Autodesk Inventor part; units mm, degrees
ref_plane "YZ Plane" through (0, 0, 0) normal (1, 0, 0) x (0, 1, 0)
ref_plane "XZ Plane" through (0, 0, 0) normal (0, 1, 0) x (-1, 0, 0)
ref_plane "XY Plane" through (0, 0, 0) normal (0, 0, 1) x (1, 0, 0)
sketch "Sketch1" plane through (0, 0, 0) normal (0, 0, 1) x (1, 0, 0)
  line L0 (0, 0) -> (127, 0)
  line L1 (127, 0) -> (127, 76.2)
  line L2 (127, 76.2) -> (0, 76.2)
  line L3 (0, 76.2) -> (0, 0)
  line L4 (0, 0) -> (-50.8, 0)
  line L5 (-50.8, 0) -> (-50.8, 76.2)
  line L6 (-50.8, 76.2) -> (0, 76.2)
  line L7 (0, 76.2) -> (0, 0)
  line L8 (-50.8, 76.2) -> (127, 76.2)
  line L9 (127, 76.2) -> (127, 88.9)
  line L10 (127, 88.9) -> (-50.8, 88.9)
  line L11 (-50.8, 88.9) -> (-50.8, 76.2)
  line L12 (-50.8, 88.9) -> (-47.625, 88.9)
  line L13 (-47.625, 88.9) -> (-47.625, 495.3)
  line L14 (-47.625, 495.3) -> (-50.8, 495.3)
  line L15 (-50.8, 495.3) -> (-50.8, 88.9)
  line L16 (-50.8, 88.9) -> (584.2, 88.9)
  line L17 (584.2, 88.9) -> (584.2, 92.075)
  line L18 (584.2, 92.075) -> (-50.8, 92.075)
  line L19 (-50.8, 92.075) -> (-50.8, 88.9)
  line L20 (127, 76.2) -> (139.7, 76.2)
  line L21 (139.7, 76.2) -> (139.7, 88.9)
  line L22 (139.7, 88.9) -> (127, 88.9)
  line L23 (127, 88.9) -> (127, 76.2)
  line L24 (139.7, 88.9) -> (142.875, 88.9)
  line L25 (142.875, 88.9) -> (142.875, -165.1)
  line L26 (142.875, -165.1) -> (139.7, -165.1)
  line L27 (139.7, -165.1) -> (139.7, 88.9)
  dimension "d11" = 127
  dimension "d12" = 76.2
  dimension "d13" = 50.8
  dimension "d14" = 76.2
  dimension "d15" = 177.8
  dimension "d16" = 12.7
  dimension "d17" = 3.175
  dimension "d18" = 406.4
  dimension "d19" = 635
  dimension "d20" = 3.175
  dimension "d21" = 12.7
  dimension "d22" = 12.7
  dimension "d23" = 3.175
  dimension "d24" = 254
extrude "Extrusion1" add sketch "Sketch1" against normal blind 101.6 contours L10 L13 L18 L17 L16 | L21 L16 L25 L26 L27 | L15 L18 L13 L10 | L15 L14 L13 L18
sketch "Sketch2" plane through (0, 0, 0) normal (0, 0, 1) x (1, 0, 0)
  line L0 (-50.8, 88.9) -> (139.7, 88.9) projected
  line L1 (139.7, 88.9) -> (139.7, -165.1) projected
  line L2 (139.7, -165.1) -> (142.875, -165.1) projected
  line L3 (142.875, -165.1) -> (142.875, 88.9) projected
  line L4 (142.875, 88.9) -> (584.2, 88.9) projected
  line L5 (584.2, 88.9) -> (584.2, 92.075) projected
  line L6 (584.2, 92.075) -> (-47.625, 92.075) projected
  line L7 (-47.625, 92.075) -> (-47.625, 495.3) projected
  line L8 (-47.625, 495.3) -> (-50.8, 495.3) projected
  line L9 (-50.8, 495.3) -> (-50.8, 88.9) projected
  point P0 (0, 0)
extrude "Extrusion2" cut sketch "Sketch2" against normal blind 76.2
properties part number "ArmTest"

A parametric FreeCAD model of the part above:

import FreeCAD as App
import Part
import Sketcher

V = App.Vector
Q = App.Units.Quantity

doc = App.newDocument("Part")
body = doc.addObject("PartDesign::Body", "Body")

# Sketch on XY plane
sketch1 = doc.addObject("Sketcher::SketchObject", "Sketch")
body.addObject(sketch1)
sketch1.AttachmentSupport = (doc.XY_Plane, [""])
sketch1.MapMode = "FlatFace"
sketch1.addGeometry([
    Part.LineSegment(V(139.7, 88.9, 0), V(139.7, -165.1, 0)),  # 0
    Part.LineSegment(V(139.7, -165.1, 0), V(142.9, -165.1, 0)),  # 1
    Part.LineSegment(V(142.9, -165.1, 0), V(142.9, 88.9, 0)),  # 2
    Part.LineSegment(V(142.9, 88.9, 0), V(584.2, 88.9, 0)),  # 3
    Part.LineSegment(V(584.2, 88.9, 0), V(584.2, 92.1, 0)),  # 4
    Part.LineSegment(V(584.2, 92.1, 0), V(-47.6, 92.1, 0)),  # 5
    Part.LineSegment(V(-47.6, 92.1, 0), V(-47.6, 495.3, 0)),  # 6
    Part.LineSegment(V(-47.6, 495.3, 0), V(-50.8, 495.3, 0)),  # 7
    Part.LineSegment(V(-50.8, 495.3, 0), V(-50.8, 88.9, 0)),  # 8
    Part.LineSegment(V(-50.8, 88.9, 0), V(139.7, 88.9, 0)),  # 9
], False)
sketch1.addConstraint([
    Sketcher.Constraint("Coincident", 0, 2, 1, 1),
    Sketcher.Constraint("Coincident", 1, 2, 2, 1),
    Sketcher.Constraint("Coincident", 2, 2, 3, 1),
    Sketcher.Constraint("Coincident", 3, 2, 4, 1),
    Sketcher.Constraint("Coincident", 4, 2, 5, 1),
    Sketcher.Constraint("Coincident", 5, 2, 6, 1),
    Sketcher.Constraint("Coincident", 6, 2, 7, 1),
    Sketcher.Constraint("Coincident", 7, 2, 8, 1),
    Sketcher.Constraint("Coincident", 8, 2, 9, 1),
    Sketcher.Constraint("Coincident", 9, 2, 0, 1),
    Sketcher.Constraint("Vertical", 0),
    Sketcher.Constraint("Horizontal", 1),
    Sketcher.Constraint("Vertical", 2),
    Sketcher.Constraint("Horizontal", 3),
    Sketcher.Constraint("Vertical", 4),
    Sketcher.Constraint("Horizontal", 5),
    Sketcher.Constraint("Vertical", 6),
    Sketcher.Constraint("Horizontal", 7),
    Sketcher.Constraint("Vertical", 8),
    Sketcher.Constraint("Horizontal", 9),
    Sketcher.Constraint("Horizontal", 3, 2, 8, 2),
    Sketcher.Constraint("Equal", 1, 7),
    Sketcher.Constraint("Equal", 7, 4),
    Sketcher.Constraint("DistanceY", 0, 2, 0, 1, Q("10 in")),
    Sketcher.Constraint("DistanceY", 8, 2, 8, 1, Q("16 in")),
    Sketcher.Constraint("DistanceX", 7, 2, -1, 1, Q("2 in")),
    Sketcher.Constraint("DistanceX", 1, 1, 1, 2, Q("0.125 in")),
    Sketcher.Constraint("DistanceX", 9, 1, 9, 2, Q("7.5 in")),
    Sketcher.Constraint("DistanceX", -1, 1, 3, 2, Q("23 in")),
    Sketcher.Constraint("DistanceY", 0, 2, -1, 1, Q("6.5 in")),
])
pad1 = doc.addObject("PartDesign::Pad", "Pad")
body.addObject(pad1)
pad1.Profile = sketch1
pad1.Length = Q("4 in")
pad1.Reversed = True

# Sketch on XY plane
sketch2 = doc.addObject("Sketcher::SketchObject", "Sketch001")
body.addObject(sketch2)
sketch2.AttachmentSupport = (doc.XY_Plane, [""])
sketch2.MapMode = "FlatFace"
sketch2.addGeometry([
    Part.LineSegment(V(-50.8, 495.3, 0), V(-50.8, 88.9, 0)),  # 0
    Part.LineSegment(V(-50.8, 88.9, 0), V(139.7, 88.9, 0)),  # 1
    Part.LineSegment(V(139.7, 88.9, 0), V(139.7, -165.1, 0)),  # 2
    Part.LineSegment(V(139.7, -165.1, 0), V(142.9, -165.1, 0)),  # 3
    Part.LineSegment(V(142.9, -165.1, 0), V(142.9, 88.9, 0)),  # 4
    Part.LineSegment(V(142.9, 88.9, 0), V(584.2, 88.9, 0)),  # 5
    Part.LineSegment(V(584.2, 88.9, 0), V(584.2, 92.1, 0)),  # 6
    Part.LineSegment(V(584.2, 92.1, 0), V(-47.6, 92.1, 0)),  # 7
    Part.LineSegment(V(-47.6, 92.1, 0), V(-47.6, 495.3, 0)),  # 8
    Part.LineSegment(V(-47.6, 495.3, 0), V(-50.8, 495.3, 0)),  # 9
], False)
sketch2.addConstraint([
    Sketcher.Constraint("Coincident", 0, 2, 1, 1),
    Sketcher.Constraint("Coincident", 1, 2, 2, 1),
    Sketcher.Constraint("Coincident", 2, 2, 3, 1),
    Sketcher.Constraint("Coincident", 3, 2, 4, 1),
    Sketcher.Constraint("Coincident", 4, 2, 5, 1),
    Sketcher.Constraint("Coincident", 5, 2, 6, 1),
    Sketcher.Constraint("Coincident", 6, 2, 7, 1),
    Sketcher.Constraint("Coincident", 7, 2, 8, 1),
    Sketcher.Constraint("Coincident", 8, 2, 9, 1),
    Sketcher.Constraint("Coincident", 9, 2, 0, 1),
    Sketcher.Constraint("Vertical", 0),
    Sketcher.Constraint("Horizontal", 1),
    Sketcher.Constraint("Vertical", 2),
    Sketcher.Constraint("Horizontal", 3),
    Sketcher.Constraint("Vertical", 4),
    Sketcher.Constraint("Horizontal", 5),
    Sketcher.Constraint("Vertical", 6),
    Sketcher.Constraint("Horizontal", 7),
    Sketcher.Constraint("Vertical", 8),
    Sketcher.Constraint("Horizontal", 9),
    Sketcher.Constraint("Horizontal", 1, 2, 4, 2),
    Sketcher.Constraint("Equal", 3, 9),
    Sketcher.Constraint("Equal", 9, 6),
    Sketcher.Constraint("DistanceY", 0, 2, 0, 1, Q("16 in")),
    Sketcher.Constraint("DistanceY", 2, 2, 2, 1, Q("10 in")),
    Sketcher.Constraint("DistanceX", 1, 1, 1, 2, Q("7.5 in")),
    Sketcher.Constraint("DistanceX", 0, 2, -1, 1, Q("2 in")),
    Sketcher.Constraint("DistanceX", -1, 1, 5, 2, Q("23 in")),
    Sketcher.Constraint("DistanceY", -1, 1, 0, 2, Q("3.5 in")),
    Sketcher.Constraint("DistanceX", 3, 1, 3, 2, Q("0.125 in")),
])
pocket1 = doc.addObject("PartDesign::Pocket", "Pocket")
body.addObject(pocket1)
pocket1.Profile = sketch2
pocket1.Length = Q("3 in")

doc.recompute()
